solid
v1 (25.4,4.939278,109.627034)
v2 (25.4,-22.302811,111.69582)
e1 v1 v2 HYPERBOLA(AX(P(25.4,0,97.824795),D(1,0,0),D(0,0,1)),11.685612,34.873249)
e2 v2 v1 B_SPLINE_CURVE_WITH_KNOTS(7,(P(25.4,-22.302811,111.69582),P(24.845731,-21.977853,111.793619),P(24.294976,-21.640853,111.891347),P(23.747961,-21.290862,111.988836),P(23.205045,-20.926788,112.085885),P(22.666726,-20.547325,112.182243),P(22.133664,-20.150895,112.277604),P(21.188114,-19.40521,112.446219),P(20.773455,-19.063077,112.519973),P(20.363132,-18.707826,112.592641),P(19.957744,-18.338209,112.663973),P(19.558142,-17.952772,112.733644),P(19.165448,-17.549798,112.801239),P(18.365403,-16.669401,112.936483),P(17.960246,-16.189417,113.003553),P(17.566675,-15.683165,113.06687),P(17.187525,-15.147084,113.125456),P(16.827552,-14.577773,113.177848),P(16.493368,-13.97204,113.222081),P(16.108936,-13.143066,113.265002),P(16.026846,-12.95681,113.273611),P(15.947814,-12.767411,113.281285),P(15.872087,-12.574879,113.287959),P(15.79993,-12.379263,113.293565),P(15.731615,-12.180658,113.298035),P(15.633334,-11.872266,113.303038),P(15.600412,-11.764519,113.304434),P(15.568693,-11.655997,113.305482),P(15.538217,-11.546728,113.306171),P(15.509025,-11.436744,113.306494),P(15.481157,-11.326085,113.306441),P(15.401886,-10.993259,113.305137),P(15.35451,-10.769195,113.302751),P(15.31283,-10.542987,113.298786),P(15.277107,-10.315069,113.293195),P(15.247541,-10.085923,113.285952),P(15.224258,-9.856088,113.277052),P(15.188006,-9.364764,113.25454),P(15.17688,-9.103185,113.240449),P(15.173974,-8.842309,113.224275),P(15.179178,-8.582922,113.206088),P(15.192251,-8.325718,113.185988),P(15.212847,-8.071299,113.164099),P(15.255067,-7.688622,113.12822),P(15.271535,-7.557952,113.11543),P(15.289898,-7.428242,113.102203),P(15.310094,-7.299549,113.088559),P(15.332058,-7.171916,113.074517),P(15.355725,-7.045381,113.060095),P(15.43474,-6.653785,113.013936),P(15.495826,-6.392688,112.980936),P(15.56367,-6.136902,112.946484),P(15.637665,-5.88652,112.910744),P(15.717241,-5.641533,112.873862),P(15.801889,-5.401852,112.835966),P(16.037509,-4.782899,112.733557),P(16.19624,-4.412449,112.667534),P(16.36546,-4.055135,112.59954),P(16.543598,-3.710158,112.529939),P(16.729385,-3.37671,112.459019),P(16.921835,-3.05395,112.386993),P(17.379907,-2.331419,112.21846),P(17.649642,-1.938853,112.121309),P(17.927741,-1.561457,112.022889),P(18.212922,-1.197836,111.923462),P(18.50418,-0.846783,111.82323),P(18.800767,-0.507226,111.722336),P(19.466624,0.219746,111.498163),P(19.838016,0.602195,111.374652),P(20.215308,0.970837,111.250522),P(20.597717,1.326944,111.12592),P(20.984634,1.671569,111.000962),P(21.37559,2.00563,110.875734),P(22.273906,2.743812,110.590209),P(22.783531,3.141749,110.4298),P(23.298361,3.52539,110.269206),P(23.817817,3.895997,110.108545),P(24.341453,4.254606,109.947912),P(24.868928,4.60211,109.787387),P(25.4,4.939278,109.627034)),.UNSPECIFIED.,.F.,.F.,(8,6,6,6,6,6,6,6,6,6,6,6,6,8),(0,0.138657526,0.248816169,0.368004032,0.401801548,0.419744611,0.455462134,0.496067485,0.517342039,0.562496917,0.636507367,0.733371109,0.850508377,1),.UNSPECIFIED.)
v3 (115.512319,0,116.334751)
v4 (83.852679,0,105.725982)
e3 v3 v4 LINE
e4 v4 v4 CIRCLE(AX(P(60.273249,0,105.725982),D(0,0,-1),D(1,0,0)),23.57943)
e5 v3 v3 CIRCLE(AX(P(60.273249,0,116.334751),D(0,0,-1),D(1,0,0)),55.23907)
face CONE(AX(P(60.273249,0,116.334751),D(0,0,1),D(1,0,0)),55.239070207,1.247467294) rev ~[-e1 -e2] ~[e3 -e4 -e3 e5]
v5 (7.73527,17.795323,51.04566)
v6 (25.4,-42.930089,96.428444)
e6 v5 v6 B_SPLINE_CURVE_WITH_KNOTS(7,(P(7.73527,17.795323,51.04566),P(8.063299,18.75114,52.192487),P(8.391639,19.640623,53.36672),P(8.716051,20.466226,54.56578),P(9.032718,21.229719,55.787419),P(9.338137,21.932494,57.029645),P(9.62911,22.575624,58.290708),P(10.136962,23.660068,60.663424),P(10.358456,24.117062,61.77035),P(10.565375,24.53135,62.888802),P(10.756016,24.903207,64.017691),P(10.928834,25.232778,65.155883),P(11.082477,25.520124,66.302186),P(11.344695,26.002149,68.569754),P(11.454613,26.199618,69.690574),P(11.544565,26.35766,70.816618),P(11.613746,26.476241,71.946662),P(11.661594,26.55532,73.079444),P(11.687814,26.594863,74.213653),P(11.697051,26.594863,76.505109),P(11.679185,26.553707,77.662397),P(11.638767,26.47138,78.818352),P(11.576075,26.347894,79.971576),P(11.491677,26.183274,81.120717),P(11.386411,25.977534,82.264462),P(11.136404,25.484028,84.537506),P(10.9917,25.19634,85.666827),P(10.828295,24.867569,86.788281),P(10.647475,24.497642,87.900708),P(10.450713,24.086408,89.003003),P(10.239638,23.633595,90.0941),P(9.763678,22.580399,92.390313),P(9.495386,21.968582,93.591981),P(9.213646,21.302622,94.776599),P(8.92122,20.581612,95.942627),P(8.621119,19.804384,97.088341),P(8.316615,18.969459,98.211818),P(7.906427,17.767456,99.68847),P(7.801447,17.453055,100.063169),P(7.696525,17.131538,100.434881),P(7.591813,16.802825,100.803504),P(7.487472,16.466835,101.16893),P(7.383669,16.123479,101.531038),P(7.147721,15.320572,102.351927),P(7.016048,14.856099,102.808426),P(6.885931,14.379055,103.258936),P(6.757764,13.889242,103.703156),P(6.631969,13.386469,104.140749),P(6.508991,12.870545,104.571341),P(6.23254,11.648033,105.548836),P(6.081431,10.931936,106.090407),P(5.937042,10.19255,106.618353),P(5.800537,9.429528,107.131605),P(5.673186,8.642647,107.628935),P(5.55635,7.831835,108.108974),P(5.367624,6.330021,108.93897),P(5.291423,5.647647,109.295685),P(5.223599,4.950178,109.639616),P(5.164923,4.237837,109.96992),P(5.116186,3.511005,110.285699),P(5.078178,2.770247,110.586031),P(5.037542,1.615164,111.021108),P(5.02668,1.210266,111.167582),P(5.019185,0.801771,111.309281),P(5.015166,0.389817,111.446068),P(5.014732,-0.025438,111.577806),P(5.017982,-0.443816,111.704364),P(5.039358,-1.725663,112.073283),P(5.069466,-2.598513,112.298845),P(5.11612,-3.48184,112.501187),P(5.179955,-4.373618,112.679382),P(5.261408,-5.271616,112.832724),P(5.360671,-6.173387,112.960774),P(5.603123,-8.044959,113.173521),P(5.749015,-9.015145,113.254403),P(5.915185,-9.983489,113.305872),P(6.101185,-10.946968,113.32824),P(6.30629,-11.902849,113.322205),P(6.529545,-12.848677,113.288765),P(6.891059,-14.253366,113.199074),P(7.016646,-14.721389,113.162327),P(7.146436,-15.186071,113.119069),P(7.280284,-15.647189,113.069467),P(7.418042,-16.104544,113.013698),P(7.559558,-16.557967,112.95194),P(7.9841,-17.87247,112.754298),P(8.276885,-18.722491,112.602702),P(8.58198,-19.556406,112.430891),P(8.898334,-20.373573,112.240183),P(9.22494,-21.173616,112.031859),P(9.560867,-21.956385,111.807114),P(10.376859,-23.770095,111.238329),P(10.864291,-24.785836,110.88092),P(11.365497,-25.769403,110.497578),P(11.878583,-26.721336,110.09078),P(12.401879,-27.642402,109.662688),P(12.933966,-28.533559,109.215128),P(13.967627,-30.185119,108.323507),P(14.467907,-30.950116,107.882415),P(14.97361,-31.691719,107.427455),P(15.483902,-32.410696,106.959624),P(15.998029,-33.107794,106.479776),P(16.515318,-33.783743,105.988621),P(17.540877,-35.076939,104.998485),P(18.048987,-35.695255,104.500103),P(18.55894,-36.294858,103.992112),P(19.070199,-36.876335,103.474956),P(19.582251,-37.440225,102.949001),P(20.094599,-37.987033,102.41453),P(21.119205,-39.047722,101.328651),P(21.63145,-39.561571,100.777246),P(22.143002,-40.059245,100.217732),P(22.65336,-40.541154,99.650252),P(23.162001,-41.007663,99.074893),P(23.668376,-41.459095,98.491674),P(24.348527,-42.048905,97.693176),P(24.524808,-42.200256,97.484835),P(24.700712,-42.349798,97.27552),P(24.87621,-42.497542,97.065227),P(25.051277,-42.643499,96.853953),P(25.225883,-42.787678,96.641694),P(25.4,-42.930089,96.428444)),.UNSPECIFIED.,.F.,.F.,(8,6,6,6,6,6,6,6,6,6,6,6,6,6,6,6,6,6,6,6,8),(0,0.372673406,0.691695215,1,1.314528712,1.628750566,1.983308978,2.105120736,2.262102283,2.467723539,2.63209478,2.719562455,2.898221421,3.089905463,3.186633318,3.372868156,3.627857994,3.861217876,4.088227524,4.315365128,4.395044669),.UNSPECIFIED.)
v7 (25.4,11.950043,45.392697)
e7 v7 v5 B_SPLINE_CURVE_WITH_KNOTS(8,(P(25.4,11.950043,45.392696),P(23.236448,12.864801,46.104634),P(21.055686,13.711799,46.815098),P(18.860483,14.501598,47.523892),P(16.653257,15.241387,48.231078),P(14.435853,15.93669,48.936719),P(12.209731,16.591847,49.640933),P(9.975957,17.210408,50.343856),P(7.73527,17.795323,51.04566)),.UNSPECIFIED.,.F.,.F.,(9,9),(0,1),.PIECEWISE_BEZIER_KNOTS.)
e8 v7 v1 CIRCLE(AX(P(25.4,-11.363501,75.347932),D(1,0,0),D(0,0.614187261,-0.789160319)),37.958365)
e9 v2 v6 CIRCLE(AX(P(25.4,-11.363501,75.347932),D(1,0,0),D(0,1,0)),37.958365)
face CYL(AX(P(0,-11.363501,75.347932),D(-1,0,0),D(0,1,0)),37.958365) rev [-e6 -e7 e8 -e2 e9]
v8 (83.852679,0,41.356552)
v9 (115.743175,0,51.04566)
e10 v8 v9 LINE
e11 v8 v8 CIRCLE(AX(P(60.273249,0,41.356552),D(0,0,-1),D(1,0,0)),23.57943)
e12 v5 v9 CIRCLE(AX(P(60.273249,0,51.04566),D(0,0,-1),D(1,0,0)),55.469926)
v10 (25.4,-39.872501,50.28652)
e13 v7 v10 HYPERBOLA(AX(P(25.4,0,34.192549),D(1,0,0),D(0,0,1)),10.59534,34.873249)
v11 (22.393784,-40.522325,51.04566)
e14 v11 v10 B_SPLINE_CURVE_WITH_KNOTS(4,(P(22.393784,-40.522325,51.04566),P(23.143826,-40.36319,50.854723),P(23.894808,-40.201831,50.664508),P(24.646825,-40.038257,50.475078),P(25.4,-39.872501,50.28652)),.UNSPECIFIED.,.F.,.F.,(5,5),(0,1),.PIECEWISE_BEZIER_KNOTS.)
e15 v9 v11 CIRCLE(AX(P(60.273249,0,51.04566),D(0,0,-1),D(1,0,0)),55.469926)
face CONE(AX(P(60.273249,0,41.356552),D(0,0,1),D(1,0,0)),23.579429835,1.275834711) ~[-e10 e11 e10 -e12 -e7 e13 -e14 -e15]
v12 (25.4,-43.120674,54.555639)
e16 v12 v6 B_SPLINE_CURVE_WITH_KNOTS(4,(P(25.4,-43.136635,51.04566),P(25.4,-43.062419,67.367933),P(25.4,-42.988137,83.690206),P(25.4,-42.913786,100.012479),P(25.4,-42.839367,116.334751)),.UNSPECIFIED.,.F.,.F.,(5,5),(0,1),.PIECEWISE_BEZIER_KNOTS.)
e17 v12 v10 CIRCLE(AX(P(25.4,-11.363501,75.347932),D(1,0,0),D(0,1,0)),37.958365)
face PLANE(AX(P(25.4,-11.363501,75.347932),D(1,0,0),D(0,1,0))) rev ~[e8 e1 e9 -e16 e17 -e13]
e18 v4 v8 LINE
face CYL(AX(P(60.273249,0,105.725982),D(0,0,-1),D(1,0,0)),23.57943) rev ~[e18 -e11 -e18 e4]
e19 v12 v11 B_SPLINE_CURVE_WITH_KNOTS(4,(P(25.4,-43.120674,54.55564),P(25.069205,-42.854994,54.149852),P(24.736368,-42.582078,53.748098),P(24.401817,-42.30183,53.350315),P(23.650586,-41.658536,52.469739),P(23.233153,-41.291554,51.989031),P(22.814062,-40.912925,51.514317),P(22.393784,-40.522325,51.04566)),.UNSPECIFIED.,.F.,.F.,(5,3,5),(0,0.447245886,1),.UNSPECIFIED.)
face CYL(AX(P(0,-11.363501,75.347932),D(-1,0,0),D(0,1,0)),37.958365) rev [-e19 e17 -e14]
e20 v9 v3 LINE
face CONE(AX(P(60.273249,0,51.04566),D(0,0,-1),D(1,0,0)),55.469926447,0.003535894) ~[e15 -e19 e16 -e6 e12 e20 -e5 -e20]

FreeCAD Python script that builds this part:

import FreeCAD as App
import Part
import Sketcher
Q = App.Units.Quantity

doc = App.newDocument("Part")
params = doc.addObject("Spreadsheet::Sheet", "Params")
for row, (alias, value) in enumerate([
    ("revolution_angle", "360 deg"),
    ("pocket1_length", "1 in"),
], start=1):
    params.set(f"A{row}", alias)
    params.set(f"B{row}", "=" + value)
    params.setAlias(f"B{row}", alias)

body = doc.addObject("PartDesign::Body", "Body")

# Sketch on XZ plane
sketch1 = doc.addObject("Sketcher::SketchObject", "Sketch")
body.addObject(sketch1)
sketch1.AttachmentSupport = (doc.XZ_Plane, [""])
sketch1.MapMode = "FlatFace"
sketch1.addGeometry([
    Part.LineSegment(App.Vector(115.512319, 116.334751, 0), App.Vector(83.852679, 105.725982, 0)),
    Part.LineSegment(App.Vector(83.852679, 105.725982, 0), App.Vector(83.852679, 41.356552, 0)),
    Part.LineSegment(App.Vector(83.852679, 41.356552, 0), App.Vector(115.743175, 51.04566, 0)),
    Part.LineSegment(App.Vector(115.743175, 51.04566, 0), App.Vector(115.512319, 116.334751, 0)),
], False)
sketch1.addGeometry(Part.LineSegment(App.Vector(60.273249, 116.334751, 0), App.Vector(60.273249, 41.356552, 0)), True)  # axis
sketch1.addConstraint([
    Sketcher.Constraint("Coincident", 0, 2, 1, 1),
    Sketcher.Constraint("Coincident", 1, 2, 2, 1),
    Sketcher.Constraint("Coincident", 2, 2, 3, 1),
    Sketcher.Constraint("Coincident", 3, 2, 0, 1),
    Sketcher.Constraint("Vertical", 1),
    Sketcher.Constraint("Vertical", 4),
    Sketcher.Constraint("Horizontal", 3, 2, 4, 1),
    Sketcher.Constraint("Horizontal", 1, 2, 4, 2),
    Sketcher.Constraint("DistanceY", 4, 2, 4, 1, Q("74.978199 mm")),
    Sketcher.Constraint("Distance", 0, Q("33.389801 mm")),
    Sketcher.Constraint("Distance", 3, Q("65.289499 mm")),
    Sketcher.Constraint("DistanceY", 1, 2, 1, 1, Q("64.369429 mm")),
    Sketcher.Constraint("DistanceX", -1, 1, 0, 2, Q("83.852679 mm")),
    Sketcher.Constraint("DistanceY", -1, 1, 0, 2, Q("105.725982 mm")),
    Sketcher.Constraint("DistanceY", -1, 1, 2, 2, Q("51.04566 mm")),
    Sketcher.Constraint("DistanceX", -1, 1, 4, 1, Q("60.273249 mm")),
])
revolution = doc.addObject("PartDesign::Revolution", "Revolution")
body.addObject(revolution)
revolution.Profile = sketch1
revolution.ReferenceAxis = (sketch1, ["Axis0"])
revolution.setExpression("Angle", "Params.revolution_angle")

# Sketch on YZ plane
sketch2 = doc.addObject("Sketcher::SketchObject", "Sketch001")
body.addObject(sketch2)
sketch2.AttachmentSupport = (doc.YZ_Plane, [""])
sketch2.MapMode = "FlatFace"
sketch2.addGeometry(Part.Circle(App.Vector(-11, 75, 0), App.Vector(0, 0, 1), 38), False)
sketch2.addConstraint([
    Sketcher.Constraint("Diameter", 0, Q("75.916729 mm")),
    Sketcher.Constraint("DistanceX", 0, 3, -1, 1, Q("11.363501 mm")),
    Sketcher.Constraint("DistanceY", -1, 1, 0, 3, Q("75.347932 mm")),
])
pocket1 = doc.addObject("PartDesign::Pocket", "Pocket")
body.addObject(pocket1)
pocket1.Profile = sketch2
pocket1.setExpression("Length", "Params.pocket1_length")
pocket1.Reversed = True

doc.recompute()
